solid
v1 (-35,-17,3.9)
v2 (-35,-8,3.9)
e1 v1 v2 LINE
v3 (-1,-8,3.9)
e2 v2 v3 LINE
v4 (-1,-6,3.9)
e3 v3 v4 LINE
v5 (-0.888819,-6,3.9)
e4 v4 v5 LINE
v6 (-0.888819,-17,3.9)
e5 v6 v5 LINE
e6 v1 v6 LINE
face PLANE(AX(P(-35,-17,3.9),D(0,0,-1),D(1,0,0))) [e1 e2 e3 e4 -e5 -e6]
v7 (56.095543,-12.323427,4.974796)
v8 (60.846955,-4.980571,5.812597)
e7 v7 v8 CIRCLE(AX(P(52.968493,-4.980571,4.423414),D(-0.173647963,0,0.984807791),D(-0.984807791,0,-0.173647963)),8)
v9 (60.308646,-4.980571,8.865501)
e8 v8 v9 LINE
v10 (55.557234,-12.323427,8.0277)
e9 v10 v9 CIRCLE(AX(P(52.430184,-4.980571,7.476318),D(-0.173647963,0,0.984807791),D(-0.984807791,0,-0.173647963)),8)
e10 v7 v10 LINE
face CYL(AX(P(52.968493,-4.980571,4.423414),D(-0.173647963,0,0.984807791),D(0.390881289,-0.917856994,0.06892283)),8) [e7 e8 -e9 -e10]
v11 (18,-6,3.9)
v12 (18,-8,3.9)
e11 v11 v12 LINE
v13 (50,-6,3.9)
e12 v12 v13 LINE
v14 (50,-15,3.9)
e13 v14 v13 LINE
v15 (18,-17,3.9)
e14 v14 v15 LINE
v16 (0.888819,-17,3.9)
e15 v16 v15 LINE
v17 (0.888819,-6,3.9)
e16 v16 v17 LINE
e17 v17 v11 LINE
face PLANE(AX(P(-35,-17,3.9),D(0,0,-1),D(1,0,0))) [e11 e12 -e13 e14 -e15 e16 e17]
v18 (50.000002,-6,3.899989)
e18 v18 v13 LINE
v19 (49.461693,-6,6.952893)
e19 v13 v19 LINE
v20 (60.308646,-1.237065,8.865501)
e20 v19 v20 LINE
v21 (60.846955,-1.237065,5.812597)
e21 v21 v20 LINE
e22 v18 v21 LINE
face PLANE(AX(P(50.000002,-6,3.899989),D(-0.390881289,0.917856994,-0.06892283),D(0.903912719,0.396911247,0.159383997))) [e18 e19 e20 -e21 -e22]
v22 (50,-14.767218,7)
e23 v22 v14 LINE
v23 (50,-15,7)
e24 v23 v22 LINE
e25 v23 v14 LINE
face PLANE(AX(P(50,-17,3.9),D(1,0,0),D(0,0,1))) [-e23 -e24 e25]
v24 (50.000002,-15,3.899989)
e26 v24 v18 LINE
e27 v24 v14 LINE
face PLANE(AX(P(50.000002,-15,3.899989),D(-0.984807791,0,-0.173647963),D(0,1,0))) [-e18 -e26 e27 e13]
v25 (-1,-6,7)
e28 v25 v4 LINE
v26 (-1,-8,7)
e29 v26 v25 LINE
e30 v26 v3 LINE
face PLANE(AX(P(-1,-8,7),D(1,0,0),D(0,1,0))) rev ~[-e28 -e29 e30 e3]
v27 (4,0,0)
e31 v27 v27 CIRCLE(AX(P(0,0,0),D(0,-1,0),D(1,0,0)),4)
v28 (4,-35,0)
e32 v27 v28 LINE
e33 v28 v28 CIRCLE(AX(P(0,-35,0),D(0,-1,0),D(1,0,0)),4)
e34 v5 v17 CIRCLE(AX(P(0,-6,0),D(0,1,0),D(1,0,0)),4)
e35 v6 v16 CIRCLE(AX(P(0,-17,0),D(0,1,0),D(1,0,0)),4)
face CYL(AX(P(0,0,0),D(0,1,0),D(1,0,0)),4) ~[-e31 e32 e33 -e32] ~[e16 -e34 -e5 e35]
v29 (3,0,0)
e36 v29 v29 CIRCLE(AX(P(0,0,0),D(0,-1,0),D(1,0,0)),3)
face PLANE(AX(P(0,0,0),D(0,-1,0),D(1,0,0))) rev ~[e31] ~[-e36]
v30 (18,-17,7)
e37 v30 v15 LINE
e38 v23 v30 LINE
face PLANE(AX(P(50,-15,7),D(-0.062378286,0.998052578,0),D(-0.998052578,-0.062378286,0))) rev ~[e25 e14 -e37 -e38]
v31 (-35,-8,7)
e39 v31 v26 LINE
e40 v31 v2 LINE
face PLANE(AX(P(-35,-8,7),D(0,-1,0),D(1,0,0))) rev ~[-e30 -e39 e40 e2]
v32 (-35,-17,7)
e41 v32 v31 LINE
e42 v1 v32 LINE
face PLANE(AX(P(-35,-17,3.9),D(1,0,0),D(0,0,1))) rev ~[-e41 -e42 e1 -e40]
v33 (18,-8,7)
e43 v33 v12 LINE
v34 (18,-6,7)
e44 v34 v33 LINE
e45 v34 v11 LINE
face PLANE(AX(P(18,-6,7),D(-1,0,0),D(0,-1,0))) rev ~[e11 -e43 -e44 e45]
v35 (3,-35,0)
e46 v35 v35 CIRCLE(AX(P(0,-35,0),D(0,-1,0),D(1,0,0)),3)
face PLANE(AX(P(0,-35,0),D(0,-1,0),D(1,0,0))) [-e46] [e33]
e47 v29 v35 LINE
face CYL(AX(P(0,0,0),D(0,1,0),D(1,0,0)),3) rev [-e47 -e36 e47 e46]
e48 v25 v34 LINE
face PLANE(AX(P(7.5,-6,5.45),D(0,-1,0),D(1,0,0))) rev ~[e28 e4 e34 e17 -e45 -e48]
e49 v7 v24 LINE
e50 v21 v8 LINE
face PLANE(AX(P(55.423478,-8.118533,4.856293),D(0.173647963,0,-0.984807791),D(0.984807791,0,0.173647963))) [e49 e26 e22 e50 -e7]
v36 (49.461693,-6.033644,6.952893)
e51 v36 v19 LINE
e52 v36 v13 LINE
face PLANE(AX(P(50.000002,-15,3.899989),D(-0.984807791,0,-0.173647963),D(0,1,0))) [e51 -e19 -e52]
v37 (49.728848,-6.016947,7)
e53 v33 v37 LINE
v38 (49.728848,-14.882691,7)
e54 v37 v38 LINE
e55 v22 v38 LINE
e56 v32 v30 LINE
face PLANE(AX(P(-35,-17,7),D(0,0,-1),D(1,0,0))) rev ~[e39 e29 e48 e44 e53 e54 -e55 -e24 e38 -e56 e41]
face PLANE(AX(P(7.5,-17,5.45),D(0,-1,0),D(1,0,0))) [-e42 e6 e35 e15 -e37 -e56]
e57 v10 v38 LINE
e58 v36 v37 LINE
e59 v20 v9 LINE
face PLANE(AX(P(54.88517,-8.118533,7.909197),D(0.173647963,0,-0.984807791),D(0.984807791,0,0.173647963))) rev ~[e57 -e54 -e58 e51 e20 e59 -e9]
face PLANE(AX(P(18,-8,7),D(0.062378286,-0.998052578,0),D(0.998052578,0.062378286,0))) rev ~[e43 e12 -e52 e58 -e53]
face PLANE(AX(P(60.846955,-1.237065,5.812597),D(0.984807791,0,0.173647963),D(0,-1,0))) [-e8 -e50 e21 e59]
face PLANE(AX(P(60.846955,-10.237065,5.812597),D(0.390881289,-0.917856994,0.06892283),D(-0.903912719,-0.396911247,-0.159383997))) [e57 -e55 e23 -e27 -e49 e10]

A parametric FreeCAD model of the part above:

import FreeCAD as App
import Part
import Sketcher
from FreeCAD import Vector


def edges_at(feature, points):
    """Names of the edges that pass closest to the given points."""
    edges = feature.Shape.Edges
    near = lambda p: min(range(len(edges)), key=lambda i: edges[i].distToShape(Part.Vertex(*p))[0])
    return sorted({f"Edge{near(p) + 1}" for p in points})

doc = App.newDocument("Part")
params = doc.addObject("Spreadsheet::Sheet", "Params")
for row, (alias, value) in enumerate([
    ("sketch1_diameter", "8 mm"),
    ("sketch1_diameter2", "6 mm"),
    ("pad1_length", "35 mm"),
    ("sketch2_width", "85 mm"),
    ("sketch2_height", "3.1 mm"),
    ("pad2_length", "11 mm"),
    ("sketch3_width", "34 mm"),
    ("sketch3_width2", "32 mm"),
    ("sketch3_height", "2 mm"),
    ("pocket1_length", "3.1 mm"),
    ("sketch4_height", "9 mm"),
    ("sketch4_length", "12 mm"),
    ("pad3_length", "3.1 mm"),
    ("fillet_radius", "8 mm"),
], start=1):
    params.set(f"A{row}", alias)
    params.set(f"B{row}", "=" + value)
    params.setAlias(f"B{row}", alias)

body = doc.addObject("PartDesign::Body", "Body")

sketch1 = doc.addObject("Sketcher::SketchObject", "Sketch")
body.addObject(sketch1)
sketch1.AttachmentSupport = (doc.XZ_Plane, [""])
sketch1.MapMode = "FlatFace"
sketch1.addGeometry([
    Part.Circle(Vector(0, 0, 0), Vector(0, 0, 1), 4),
    Part.Circle(Vector(0, 0, 0), Vector(0, 0, 1), 3),
], False)
sketch1.addConstraint([
    Sketcher.Constraint("Coincident", 0, 3, -1, 1),
    Sketcher.Constraint("Coincident", 1, 3, -1, 1),
    Sketcher.Constraint("Diameter", 0, 8.0),
    Sketcher.Constraint("Diameter", 1, 6.0),
])
sketch1.setExpression("Constraints[2]", "Params.sketch1_diameter")
sketch1.setExpression("Constraints[3]", "Params.sketch1_diameter2")
pad1 = doc.addObject("PartDesign::Pad", "Pad")
body.addObject(pad1)
pad1.Profile = sketch1
pad1.setExpression("Length", "Params.pad1_length")

sketch2 = doc.addObject("Sketcher::SketchObject", "Sketch001")
body.addObject(sketch2)
sketch2.AttachmentSupport = (doc.XZ_Plane, [""])
sketch2.MapMode = "FlatFace"
sketch2.AttachmentOffset = App.Placement(Vector(0, 0, 17), App.Rotation())
sketch2.addGeometry([
    Part.LineSegment(Vector(-35, 7, 0), Vector(-35, 3.9, 0)),
    Part.LineSegment(Vector(-35, 3.9, 0), Vector(50, 3.9, 0)),
    Part.LineSegment(Vector(50, 3.9, 0), Vector(50, 7, 0)),
    Part.LineSegment(Vector(50, 7, 0), Vector(-35, 7, 0)),
], False)
sketch2.addConstraint([
    Sketcher.Constraint("Coincident", 0, 2, 1, 1),
    Sketcher.Constraint("Coincident", 1, 2, 2, 1),
    Sketcher.Constraint("Coincident", 2, 2, 3, 1),
    Sketcher.Constraint("Coincident", 3, 2, 0, 1),
    Sketcher.Constraint("Vertical", 0),
    Sketcher.Constraint("Horizontal", 1),
    Sketcher.Constraint("Vertical", 2),
    Sketcher.Constraint("Horizontal", 3),
    Sketcher.Constraint("DistanceX", 1, 1, 1, 2, 85.0),
    Sketcher.Constraint("DistanceY", 0, 2, 0, 1, 3.1),
    Sketcher.Constraint("DistanceX", 0, 2, -1, 1, 35.0),
    Sketcher.Constraint("DistanceY", -1, 1, 2, 2, 7.0),
])
sketch2.setExpression("Constraints[8]", "Params.sketch2_width")
sketch2.setExpression("Constraints[9]", "Params.sketch2_height")
pad2 = doc.addObject("PartDesign::Pad", "Pad001")
body.addObject(pad2)
pad2.Profile = sketch2
pad2.setExpression("Length", "Params.pad2_length")
pad2.Reversed = True

sketch3 = doc.addObject("Sketcher::SketchObject", "Sketch002")
body.addObject(sketch3)
sketch3.AttachmentSupport = (doc.XY_Plane, [""])
sketch3.MapMode = "FlatFace"
sketch3.AttachmentOffset = App.Placement(Vector(0, 0, 7), App.Rotation())
sketch3.addGeometry([
    Part.LineSegment(Vector(-35, -6, 0), Vector(-35, -8, 0)),
    Part.LineSegment(Vector(-35, -8, 0), Vector(-1, -8, 0)),
    Part.LineSegment(Vector(-1, -8, 0), Vector(-1, -6, 0)),
    Part.LineSegment(Vector(-1, -6, 0), Vector(-35, -6, 0)),
    Part.LineSegment(Vector(50, -6, 0), Vector(18, -6, 0)),
    Part.LineSegment(Vector(18, -6, 0), Vector(18, -8, 0)),
    Part.LineSegment(Vector(18, -8, 0), Vector(50, -6, 0)),
    Part.LineSegment(Vector(50, -15, 0), Vector(18, -17, 0)),
    Part.LineSegment(Vector(18, -17, 0), Vector(50, -17, 0)),
    Part.LineSegment(Vector(50, -17, 0), Vector(50, -15, 0)),
], False)
sketch3.addConstraint([
    Sketcher.Constraint("Coincident", 0, 2, 1, 1),
    Sketcher.Constraint("Coincident", 1, 2, 2, 1),
    Sketcher.Constraint("Coincident", 2, 2, 3, 1),
    Sketcher.Constraint("Coincident", 3, 2, 0, 1),
    Sketcher.Constraint("Coincident", 4, 2, 5, 1),
    Sketcher.Constraint("Coincident", 5, 2, 6, 1),
    Sketcher.Constraint("Coincident", 6, 2, 4, 1),
    Sketcher.Constraint("Coincident", 7, 2, 8, 1),
    Sketcher.Constraint("Coincident", 8, 2, 9, 1),
    Sketcher.Constraint("Coincident", 9, 2, 7, 1),
    Sketcher.Constraint("Vertical", 0),
    Sketcher.Constraint("Horizontal", 1),
    Sketcher.Constraint("Vertical", 2),
    Sketcher.Constraint("Horizontal", 3),
    Sketcher.Constraint("Horizontal", 4),
    Sketcher.Constraint("Vertical", 5),
    Sketcher.Constraint("Horizontal", 8),
    Sketcher.Constraint("Vertical", 9),
    Sketcher.Constraint("Parallel", 6, 7),
    Sketcher.Constraint("Horizontal", 3, 2, 4, 2),
    Sketcher.Constraint("Horizontal", 1, 2, 5, 2),
    Sketcher.Constraint("Vertical", 5, 2, 7, 2),
    Sketcher.Constraint("Vertical", 6, 2, 8, 2),
    Sketcher.Constraint("DistanceX", 1, 1, 1, 2, 34.0),
    Sketcher.Constraint("DistanceX", 4, 2, 4, 1, 32.0),
    Sketcher.Constraint("DistanceY", 0, 2, 0, 1, 2.0),
    Sketcher.Constraint("DistanceX", 0, 2, -1, 1, 35.0),
    Sketcher.Constraint("DistanceY", 0, 2, -1, 1, 8.0),
    Sketcher.Constraint("DistanceX", -1, 1, 4, 2, 18.0),
    Sketcher.Constraint("DistanceY", 7, 2, -1, 1, 17.0),
])
sketch3.setExpression("Constraints[23]", "Params.sketch3_width")
sketch3.setExpression("Constraints[24]", "Params.sketch3_width2")
sketch3.setExpression("Constraints[25]", "Params.sketch3_height")
pocket1 = doc.addObject("PartDesign::Pocket", "Pocket")
body.addObject(pocket1)
pocket1.Profile = sketch3
pocket1.setExpression("Length", "Params.pocket1_length")

sketch4 = doc.addObject("Sketcher::SketchObject", "Sketch003")
body.addObject(sketch4)
sketch4.Placement = App.Placement(Vector(0.840745, 0, -4.768103), App.Rotation(Vector(0.984807791, 0, 0.173647963), Vector(0, -1, 0), Vector(0.173647963, 0, -0.984807791), "ZXY"))
sketch4.addGeometry([
    Part.LineSegment(Vector(61, 10, 0), Vector(50, 15, 0)),
    Part.LineSegment(Vector(50, 15, 0), Vector(50, 6, 0)),
    Part.LineSegment(Vector(50, 6, 0), Vector(61, 1, 0)),
    Part.LineSegment(Vector(61, 1, 0), Vector(61, 10, 0)),
], False)
sketch4.addConstraint([
    Sketcher.Constraint("Coincident", 0, 2, 1, 1),
    Sketcher.Constraint("Coincident", 1, 2, 2, 1),
    Sketcher.Constraint("Coincident", 2, 2, 3, 1),
    Sketcher.Constraint("Coincident", 3, 2, 0, 1),
    Sketcher.Constraint("Vertical", 1),
    Sketcher.Constraint("Vertical", 3),
    Sketcher.Constraint("Parallel", 0, 2),
    Sketcher.Constraint("DistanceY", 1, 2, 1, 1, 9.0),
    Sketcher.Constraint("Distance", 0, 12.0),
    Sketcher.Constraint("DistanceY", -1, 1, 0, 2, 15.0),
    Sketcher.Constraint("DistanceX", -1, 1, 2, 2, 60.9319),
    Sketcher.Constraint("DistanceX", -1, 1, 0, 2, 49.917616),
])
sketch4.setExpression("Constraints[7]", "Params.sketch4_height")
sketch4.setExpression("Constraints[8]", "Params.sketch4_length")
pad3 = doc.addObject("PartDesign::Pad", "Pad002")
body.addObject(pad3)
pad3.Profile = sketch4
pad3.setExpression("Length", "Params.pad3_length")
pad3.Reversed = True
doc.recompute()

fillet = doc.addObject("PartDesign::Fillet", "Fillet")
body.addObject(fillet)
fillet.Base = (pad3, edges_at(pad3, [(60.578, -10.237, 7.339)]))
fillet.setExpression("Radius", "Params.fillet_radius")

doc.recompute()
